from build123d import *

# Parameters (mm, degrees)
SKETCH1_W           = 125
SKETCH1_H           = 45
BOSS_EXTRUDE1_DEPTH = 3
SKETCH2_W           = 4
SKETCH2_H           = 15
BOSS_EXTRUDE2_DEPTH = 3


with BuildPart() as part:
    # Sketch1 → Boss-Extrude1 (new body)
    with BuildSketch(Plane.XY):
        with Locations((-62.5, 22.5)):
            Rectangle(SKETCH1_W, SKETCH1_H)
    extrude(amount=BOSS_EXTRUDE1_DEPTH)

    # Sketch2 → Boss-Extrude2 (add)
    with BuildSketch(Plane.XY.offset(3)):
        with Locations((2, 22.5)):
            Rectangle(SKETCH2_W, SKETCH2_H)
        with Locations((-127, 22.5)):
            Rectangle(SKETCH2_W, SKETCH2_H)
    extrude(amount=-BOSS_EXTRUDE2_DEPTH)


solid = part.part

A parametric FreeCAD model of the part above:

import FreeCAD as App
import Part
import Sketcher

V = App.Vector
Q = App.Units.Quantity

doc = App.newDocument("Part")
body = doc.addObject("PartDesign::Body", "Body")

# Sketch on XY plane
sketch1 = doc.addObject("Sketcher::SketchObject", "Sketch")
body.addObject(sketch1)
sketch1.AttachmentSupport = (doc.XY_Plane, [""])
sketch1.MapMode = "FlatFace"
sketch1.addGeometry([
    Part.LineSegment(V(-125, 45, 0), V(-125, 0, 0)),
    Part.LineSegment(V(-125, 0, 0), V(0, 0, 0)),
    Part.LineSegment(V(0, 0, 0), V(0, 45, 0)),
    Part.LineSegment(V(0, 45, 0), V(-125, 45, 0)),
], False)
sketch1.addConstraint([
    Sketcher.Constraint("Coincident", 0, 2, 1, 1),
    Sketcher.Constraint("Coincident", 1, 2, 2, 1),
    Sketcher.Constraint("Coincident", 2, 2, 3, 1),
    Sketcher.Constraint("Coincident", 3, 2, 0, 1),
    Sketcher.Constraint("Vertical", 0),
    Sketcher.Constraint("Horizontal", 1),
    Sketcher.Constraint("Vertical", 2),
    Sketcher.Constraint("Horizontal", 3),
    Sketcher.Constraint("Coincident", 1, 2, -1, 1),
    Sketcher.Constraint("DistanceX", 1, 1, 1, 2, Q("125 mm")),
    Sketcher.Constraint("DistanceY", 0, 2, 0, 1, Q("45 mm")),
])
pad1 = doc.addObject("PartDesign::Pad", "Pad")
body.addObject(pad1)
pad1.Profile = sketch1
pad1.Length = 3

# Sketch on XY plane
sketch2 = doc.addObject("Sketcher::SketchObject", "Sketch001")
body.addObject(sketch2)
sketch2.AttachmentSupport = (doc.XY_Plane, [""])
sketch2.MapMode = "FlatFace"
sketch2.AttachmentOffset = App.Placement(V(0, 0, 3), App.Rotation())
sketch2.addGeometry([
    Part.LineSegment(V(0, 30, 0), V(0, 15, 0)),  # 0
    Part.LineSegment(V(0, 15, 0), V(4, 15, 0)),  # 1
    Part.LineSegment(V(4, 15, 0), V(4, 30, 0)),  # 2
    Part.LineSegment(V(4, 30, 0), V(0, 30, 0)),  # 3
    Part.LineSegment(V(-129, 30, 0), V(-129, 15, 0)),  # 4
    Part.LineSegment(V(-129, 15, 0), V(-125, 15, 0)),  # 5
    Part.LineSegment(V(-125, 15, 0), V(-125, 30, 0)),  # 6
    Part.LineSegment(V(-125, 30, 0), V(-129, 30, 0)),  # 7
], False)
sketch2.addConstraint([
    Sketcher.Constraint("Coincident", 0, 2, 1, 1),
    Sketcher.Constraint("Coincident", 1, 2, 2, 1),
    Sketcher.Constraint("Coincident", 2, 2, 3, 1),
    Sketcher.Constraint("Coincident", 3, 2, 0, 1),
    Sketcher.Constraint("Coincident", 4, 2, 5, 1),
    Sketcher.Constraint("Coincident", 5, 2, 6, 1),
    Sketcher.Constraint("Coincident", 6, 2, 7, 1),
    Sketcher.Constraint("Coincident", 7, 2, 4, 1),
    Sketcher.Constraint("Vertical", 0),
    Sketcher.Constraint("Horizontal", 1),
    Sketcher.Constraint("Vertical", 2),
    Sketcher.Constraint("Horizontal", 3),
    Sketcher.Constraint("Vertical", 4),
    Sketcher.Constraint("Horizontal", 5),
    Sketcher.Constraint("Vertical", 6),
    Sketcher.Constraint("Horizontal", 7),
    Sketcher.Constraint("PointOnObject", 0, 2, -2),
    Sketcher.Constraint("Horizontal", 1, 2, 4, 2),
    Sketcher.Constraint("Horizontal", 3, 2, 6, 2),
    Sketcher.Constraint("Equal", 3, 5),
    Sketcher.Constraint("DistanceX", 1, 1, 1, 2, Q("4 mm")),
    Sketcher.Constraint("DistanceY", 0, 2, 0, 1, Q("15 mm")),
    Sketcher.Constraint("DistanceY", -1, 1, 0, 2, Q("15 mm")),
    Sketcher.Constraint("DistanceX", 4, 2, -1, 1, Q("129 mm")),
])
pad2 = doc.addObject("PartDesign::Pad", "Pad001")
body.addObject(pad2)
pad2.Profile = sketch2
pad2.Length = 3
pad2.Reversed = True

doc.recompute()
